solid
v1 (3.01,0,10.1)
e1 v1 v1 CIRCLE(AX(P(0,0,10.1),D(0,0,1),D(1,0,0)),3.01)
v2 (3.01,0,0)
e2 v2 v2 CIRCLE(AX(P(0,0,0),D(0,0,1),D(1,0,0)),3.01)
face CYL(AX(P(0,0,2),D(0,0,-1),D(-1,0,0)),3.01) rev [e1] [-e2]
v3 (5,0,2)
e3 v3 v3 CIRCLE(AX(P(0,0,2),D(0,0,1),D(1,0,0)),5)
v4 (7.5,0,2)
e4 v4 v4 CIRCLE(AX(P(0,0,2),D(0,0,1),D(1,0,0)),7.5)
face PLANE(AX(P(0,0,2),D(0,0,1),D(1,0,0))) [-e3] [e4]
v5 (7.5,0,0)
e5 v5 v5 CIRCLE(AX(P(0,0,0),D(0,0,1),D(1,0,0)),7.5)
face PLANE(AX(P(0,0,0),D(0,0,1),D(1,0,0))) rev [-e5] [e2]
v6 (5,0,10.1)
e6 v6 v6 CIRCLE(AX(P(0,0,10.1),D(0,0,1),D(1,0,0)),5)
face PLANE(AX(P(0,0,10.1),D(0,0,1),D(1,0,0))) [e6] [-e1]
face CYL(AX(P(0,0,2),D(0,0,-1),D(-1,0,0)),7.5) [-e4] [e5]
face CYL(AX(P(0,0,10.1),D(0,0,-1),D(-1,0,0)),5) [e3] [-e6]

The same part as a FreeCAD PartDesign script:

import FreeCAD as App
import Part
import Sketcher
Q = App.Units.Quantity

doc = App.newDocument("Part")
params = doc.addObject("Spreadsheet::Sheet", "Params")
for row, (alias, value) in enumerate([
    ("sketch1_diameter", "15 mm"),
    ("sketch1_diameter2", "6.02 mm"),
    ("pad1_length", "2 mm"),
    ("sketch2_diameter", "10 mm"),
    ("sketch2_diameter2", "6.02 mm"),
    ("pad2_length", "8.1 mm"),
], start=1):
    params.set(f"A{row}", alias)
    params.set(f"B{row}", "=" + value)
    params.setAlias(f"B{row}", alias)

body = doc.addObject("PartDesign::Body", "Body")

# Sketch on XY plane
sketch1 = doc.addObject("Sketcher::SketchObject", "Sketch")
body.addObject(sketch1)
sketch1.AttachmentSupport = (doc.XY_Plane, [""])
sketch1.MapMode = "FlatFace"
sketch1.addGeometry([
    Part.Circle(App.Vector(0, 0, 0), App.Vector(0, 0, 1), 7.5),
    Part.Circle(App.Vector(0, 0, 0), App.Vector(0, 0, 1), 3.01),
], False)
sketch1.addConstraint([
    Sketcher.Constraint("Coincident", 0, 3, -1, 1),
    Sketcher.Constraint("Coincident", 1, 3, -1, 1),
    Sketcher.Constraint("Diameter", 0, Q("15 mm")),
    Sketcher.Constraint("Diameter", 1, Q("6.02 mm")),
])
sketch1.setExpression("Constraints[2]", "Params.sketch1_diameter")
sketch1.setExpression("Constraints[3]", "Params.sketch1_diameter2")
pad1 = doc.addObject("PartDesign::Pad", "Pad")
body.addObject(pad1)
pad1.Profile = sketch1
pad1.setExpression("Length", "Params.pad1_length")

# Sketch on XY plane
sketch2 = doc.addObject("Sketcher::SketchObject", "Sketch001")
body.addObject(sketch2)
sketch2.AttachmentSupport = (doc.XY_Plane, [""])
sketch2.MapMode = "FlatFace"
sketch2.AttachmentOffset = App.Placement(App.Vector(0, 0, 2), App.Rotation())
sketch2.addGeometry([
    Part.Circle(App.Vector(0, 0, 0), App.Vector(0, 0, 1), 5),
    Part.Circle(App.Vector(0, 0, 0), App.Vector(0, 0, 1), 3.01),
], False)
sketch2.addConstraint([
    Sketcher.Constraint("Coincident", 0, 3, -1, 1),
    Sketcher.Constraint("Coincident", 1, 3, -1, 1),
    Sketcher.Constraint("Diameter", 0, Q("10 mm")),
    Sketcher.Constraint("Diameter", 1, Q("6.02 mm")),
])
sketch2.setExpression("Constraints[2]", "Params.sketch2_diameter")
sketch2.setExpression("Constraints[3]", "Params.sketch2_diameter2")
pad2 = doc.addObject("PartDesign::Pad", "Pad001")
body.addObject(pad2)
pad2.Profile = sketch2
pad2.setExpression("Length", "Params.pad2_length")

doc.recompute()
